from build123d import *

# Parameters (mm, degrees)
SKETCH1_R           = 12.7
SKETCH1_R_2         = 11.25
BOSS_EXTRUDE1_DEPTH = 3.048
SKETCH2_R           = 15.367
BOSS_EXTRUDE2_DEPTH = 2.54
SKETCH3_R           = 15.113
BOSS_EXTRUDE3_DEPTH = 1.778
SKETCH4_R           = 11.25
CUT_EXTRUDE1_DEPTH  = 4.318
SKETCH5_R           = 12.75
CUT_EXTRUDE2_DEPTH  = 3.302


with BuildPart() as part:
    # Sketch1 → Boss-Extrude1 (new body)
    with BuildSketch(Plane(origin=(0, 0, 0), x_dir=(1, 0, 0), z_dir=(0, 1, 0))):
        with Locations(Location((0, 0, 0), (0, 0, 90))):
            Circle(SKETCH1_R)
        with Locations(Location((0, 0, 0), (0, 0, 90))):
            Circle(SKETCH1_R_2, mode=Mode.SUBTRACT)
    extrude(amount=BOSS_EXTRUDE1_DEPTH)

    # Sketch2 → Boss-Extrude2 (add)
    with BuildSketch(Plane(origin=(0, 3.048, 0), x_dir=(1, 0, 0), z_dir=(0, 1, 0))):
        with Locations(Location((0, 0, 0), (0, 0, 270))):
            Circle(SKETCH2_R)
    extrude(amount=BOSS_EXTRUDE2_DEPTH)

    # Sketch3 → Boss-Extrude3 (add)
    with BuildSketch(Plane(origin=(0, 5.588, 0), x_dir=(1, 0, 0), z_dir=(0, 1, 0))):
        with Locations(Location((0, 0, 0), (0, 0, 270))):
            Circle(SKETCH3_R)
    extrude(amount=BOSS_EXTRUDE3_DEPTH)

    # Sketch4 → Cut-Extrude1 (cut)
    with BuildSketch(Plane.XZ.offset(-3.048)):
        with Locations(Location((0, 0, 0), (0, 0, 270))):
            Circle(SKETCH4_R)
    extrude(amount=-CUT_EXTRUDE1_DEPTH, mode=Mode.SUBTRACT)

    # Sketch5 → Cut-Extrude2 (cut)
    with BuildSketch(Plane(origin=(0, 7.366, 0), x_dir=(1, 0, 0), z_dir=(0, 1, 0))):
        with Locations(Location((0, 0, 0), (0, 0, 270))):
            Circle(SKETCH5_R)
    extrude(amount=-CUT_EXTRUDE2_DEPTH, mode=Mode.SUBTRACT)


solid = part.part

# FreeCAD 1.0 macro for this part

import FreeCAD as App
import Part
import Sketcher

V = App.Vector
Q = App.Units.Quantity

doc = App.newDocument("Part")
body = doc.addObject("PartDesign::Body", "Body")

sketch1 = body.newObject("Sketcher::SketchObject", "Sketch")
sketch1.AttachmentSupport = (doc.getObject("XZ_Plane"), [""])
sketch1.MapMode = "FlatFace"
sketch1.addGeometry([
    Part.Circle(V(0, 0, 0), V(0, 0, 1), 13),
    Part.Circle(V(0, 0, 0), V(0, 0, 1), 11),
], False)
sketch1.addConstraint([
    Sketcher.Constraint("Coincident", 0, 3, -1, 1),
    Sketcher.Constraint("Coincident", 1, 3, -1, 1),
    Sketcher.Constraint("Diameter", 0, Q("1 in")),
    Sketcher.Constraint("Diameter", 1, Q("22.5 mm")),
])
pad1 = body.newObject("PartDesign::Pad", "Pad")
pad1.Profile = sketch1
pad1.Length = Q("0.12 in")
pad1.Reversed = True

sketch2 = body.newObject("Sketcher::SketchObject", "Sketch001")
sketch2.AttachmentSupport = (doc.getObject("XZ_Plane"), [""])
sketch2.MapMode = "FlatFace"
sketch2.AttachmentOffset = App.Placement(V(0, 0, -0.12 * 25.4), App.Rotation())
sketch2.addGeometry(Part.Circle(V(0, 0, 0), V(0, 0, 1), 15), False)
sketch2.addConstraint([
    Sketcher.Constraint("Coincident", 0, 3, -1, 1),
    Sketcher.Constraint("Diameter", 0, Q("1.21 in")),
])
pad2 = body.newObject("PartDesign::Pad", "Pad001")
pad2.Profile = sketch2
pad2.Length = Q("0.1 in")
pad2.Reversed = True

sketch3 = body.newObject("Sketcher::SketchObject", "Sketch002")
sketch3.AttachmentSupport = (doc.getObject("XZ_Plane"), [""])
sketch3.MapMode = "FlatFace"
sketch3.AttachmentOffset = App.Placement(V(0, 0, -0.22 * 25.4), App.Rotation())
sketch3.addGeometry(Part.Circle(V(0, 0, 0), V(0, 0, 1), 15), False)
sketch3.addConstraint([
    Sketcher.Constraint("Coincident", 0, 3, -1, 1),
    Sketcher.Constraint("Diameter", 0, Q("1.19 in")),
])
pad3 = body.newObject("PartDesign::Pad", "Pad002")
pad3.Profile = sketch3
pad3.Length = Q("0.07 in")
pad3.Reversed = True

sketch4 = body.newObject("Sketcher::SketchObject", "Sketch003")
sketch4.AttachmentSupport = (doc.getObject("XZ_Plane"), [""])
sketch4.MapMode = "FlatFace"
sketch4.AttachmentOffset = App.Placement(V(0, 0, -0.12 * 25.4), App.Rotation())
sketch4.addGeometry(Part.Circle(V(0, 0, 0), V(0, 0, 1), 11), False)
sketch4.addConstraint([
    Sketcher.Constraint("Coincident", 0, 3, -1, 1),
    Sketcher.Constraint("Diameter", 0, Q("22.5 mm")),
])
pocket1 = body.newObject("PartDesign::Pocket", "Pocket")
pocket1.Profile = sketch4
pocket1.Length = Q("0.17 in")

sketch5 = body.newObject("Sketcher::SketchObject", "Sketch004")
sketch5.AttachmentSupport = (doc.getObject("XZ_Plane"), [""])
sketch5.MapMode = "FlatFace"
sketch5.AttachmentOffset = App.Placement(V(0, 0, -0.29 * 25.4), App.Rotation())
sketch5.addGeometry(Part.Circle(V(0, 0, 0), V(0, 0, 1), 13), False)
sketch5.addConstraint([
    Sketcher.Constraint("Coincident", 0, 3, -1, 1),
    Sketcher.Constraint("Diameter", 0, Q("25.5 mm")),
])
pocket2 = body.newObject("PartDesign::Pocket", "Pocket001")
pocket2.Profile = sketch5
pocket2.Length = Q("0.13 in")
pocket2.Reversed = True

doc.recompute()
